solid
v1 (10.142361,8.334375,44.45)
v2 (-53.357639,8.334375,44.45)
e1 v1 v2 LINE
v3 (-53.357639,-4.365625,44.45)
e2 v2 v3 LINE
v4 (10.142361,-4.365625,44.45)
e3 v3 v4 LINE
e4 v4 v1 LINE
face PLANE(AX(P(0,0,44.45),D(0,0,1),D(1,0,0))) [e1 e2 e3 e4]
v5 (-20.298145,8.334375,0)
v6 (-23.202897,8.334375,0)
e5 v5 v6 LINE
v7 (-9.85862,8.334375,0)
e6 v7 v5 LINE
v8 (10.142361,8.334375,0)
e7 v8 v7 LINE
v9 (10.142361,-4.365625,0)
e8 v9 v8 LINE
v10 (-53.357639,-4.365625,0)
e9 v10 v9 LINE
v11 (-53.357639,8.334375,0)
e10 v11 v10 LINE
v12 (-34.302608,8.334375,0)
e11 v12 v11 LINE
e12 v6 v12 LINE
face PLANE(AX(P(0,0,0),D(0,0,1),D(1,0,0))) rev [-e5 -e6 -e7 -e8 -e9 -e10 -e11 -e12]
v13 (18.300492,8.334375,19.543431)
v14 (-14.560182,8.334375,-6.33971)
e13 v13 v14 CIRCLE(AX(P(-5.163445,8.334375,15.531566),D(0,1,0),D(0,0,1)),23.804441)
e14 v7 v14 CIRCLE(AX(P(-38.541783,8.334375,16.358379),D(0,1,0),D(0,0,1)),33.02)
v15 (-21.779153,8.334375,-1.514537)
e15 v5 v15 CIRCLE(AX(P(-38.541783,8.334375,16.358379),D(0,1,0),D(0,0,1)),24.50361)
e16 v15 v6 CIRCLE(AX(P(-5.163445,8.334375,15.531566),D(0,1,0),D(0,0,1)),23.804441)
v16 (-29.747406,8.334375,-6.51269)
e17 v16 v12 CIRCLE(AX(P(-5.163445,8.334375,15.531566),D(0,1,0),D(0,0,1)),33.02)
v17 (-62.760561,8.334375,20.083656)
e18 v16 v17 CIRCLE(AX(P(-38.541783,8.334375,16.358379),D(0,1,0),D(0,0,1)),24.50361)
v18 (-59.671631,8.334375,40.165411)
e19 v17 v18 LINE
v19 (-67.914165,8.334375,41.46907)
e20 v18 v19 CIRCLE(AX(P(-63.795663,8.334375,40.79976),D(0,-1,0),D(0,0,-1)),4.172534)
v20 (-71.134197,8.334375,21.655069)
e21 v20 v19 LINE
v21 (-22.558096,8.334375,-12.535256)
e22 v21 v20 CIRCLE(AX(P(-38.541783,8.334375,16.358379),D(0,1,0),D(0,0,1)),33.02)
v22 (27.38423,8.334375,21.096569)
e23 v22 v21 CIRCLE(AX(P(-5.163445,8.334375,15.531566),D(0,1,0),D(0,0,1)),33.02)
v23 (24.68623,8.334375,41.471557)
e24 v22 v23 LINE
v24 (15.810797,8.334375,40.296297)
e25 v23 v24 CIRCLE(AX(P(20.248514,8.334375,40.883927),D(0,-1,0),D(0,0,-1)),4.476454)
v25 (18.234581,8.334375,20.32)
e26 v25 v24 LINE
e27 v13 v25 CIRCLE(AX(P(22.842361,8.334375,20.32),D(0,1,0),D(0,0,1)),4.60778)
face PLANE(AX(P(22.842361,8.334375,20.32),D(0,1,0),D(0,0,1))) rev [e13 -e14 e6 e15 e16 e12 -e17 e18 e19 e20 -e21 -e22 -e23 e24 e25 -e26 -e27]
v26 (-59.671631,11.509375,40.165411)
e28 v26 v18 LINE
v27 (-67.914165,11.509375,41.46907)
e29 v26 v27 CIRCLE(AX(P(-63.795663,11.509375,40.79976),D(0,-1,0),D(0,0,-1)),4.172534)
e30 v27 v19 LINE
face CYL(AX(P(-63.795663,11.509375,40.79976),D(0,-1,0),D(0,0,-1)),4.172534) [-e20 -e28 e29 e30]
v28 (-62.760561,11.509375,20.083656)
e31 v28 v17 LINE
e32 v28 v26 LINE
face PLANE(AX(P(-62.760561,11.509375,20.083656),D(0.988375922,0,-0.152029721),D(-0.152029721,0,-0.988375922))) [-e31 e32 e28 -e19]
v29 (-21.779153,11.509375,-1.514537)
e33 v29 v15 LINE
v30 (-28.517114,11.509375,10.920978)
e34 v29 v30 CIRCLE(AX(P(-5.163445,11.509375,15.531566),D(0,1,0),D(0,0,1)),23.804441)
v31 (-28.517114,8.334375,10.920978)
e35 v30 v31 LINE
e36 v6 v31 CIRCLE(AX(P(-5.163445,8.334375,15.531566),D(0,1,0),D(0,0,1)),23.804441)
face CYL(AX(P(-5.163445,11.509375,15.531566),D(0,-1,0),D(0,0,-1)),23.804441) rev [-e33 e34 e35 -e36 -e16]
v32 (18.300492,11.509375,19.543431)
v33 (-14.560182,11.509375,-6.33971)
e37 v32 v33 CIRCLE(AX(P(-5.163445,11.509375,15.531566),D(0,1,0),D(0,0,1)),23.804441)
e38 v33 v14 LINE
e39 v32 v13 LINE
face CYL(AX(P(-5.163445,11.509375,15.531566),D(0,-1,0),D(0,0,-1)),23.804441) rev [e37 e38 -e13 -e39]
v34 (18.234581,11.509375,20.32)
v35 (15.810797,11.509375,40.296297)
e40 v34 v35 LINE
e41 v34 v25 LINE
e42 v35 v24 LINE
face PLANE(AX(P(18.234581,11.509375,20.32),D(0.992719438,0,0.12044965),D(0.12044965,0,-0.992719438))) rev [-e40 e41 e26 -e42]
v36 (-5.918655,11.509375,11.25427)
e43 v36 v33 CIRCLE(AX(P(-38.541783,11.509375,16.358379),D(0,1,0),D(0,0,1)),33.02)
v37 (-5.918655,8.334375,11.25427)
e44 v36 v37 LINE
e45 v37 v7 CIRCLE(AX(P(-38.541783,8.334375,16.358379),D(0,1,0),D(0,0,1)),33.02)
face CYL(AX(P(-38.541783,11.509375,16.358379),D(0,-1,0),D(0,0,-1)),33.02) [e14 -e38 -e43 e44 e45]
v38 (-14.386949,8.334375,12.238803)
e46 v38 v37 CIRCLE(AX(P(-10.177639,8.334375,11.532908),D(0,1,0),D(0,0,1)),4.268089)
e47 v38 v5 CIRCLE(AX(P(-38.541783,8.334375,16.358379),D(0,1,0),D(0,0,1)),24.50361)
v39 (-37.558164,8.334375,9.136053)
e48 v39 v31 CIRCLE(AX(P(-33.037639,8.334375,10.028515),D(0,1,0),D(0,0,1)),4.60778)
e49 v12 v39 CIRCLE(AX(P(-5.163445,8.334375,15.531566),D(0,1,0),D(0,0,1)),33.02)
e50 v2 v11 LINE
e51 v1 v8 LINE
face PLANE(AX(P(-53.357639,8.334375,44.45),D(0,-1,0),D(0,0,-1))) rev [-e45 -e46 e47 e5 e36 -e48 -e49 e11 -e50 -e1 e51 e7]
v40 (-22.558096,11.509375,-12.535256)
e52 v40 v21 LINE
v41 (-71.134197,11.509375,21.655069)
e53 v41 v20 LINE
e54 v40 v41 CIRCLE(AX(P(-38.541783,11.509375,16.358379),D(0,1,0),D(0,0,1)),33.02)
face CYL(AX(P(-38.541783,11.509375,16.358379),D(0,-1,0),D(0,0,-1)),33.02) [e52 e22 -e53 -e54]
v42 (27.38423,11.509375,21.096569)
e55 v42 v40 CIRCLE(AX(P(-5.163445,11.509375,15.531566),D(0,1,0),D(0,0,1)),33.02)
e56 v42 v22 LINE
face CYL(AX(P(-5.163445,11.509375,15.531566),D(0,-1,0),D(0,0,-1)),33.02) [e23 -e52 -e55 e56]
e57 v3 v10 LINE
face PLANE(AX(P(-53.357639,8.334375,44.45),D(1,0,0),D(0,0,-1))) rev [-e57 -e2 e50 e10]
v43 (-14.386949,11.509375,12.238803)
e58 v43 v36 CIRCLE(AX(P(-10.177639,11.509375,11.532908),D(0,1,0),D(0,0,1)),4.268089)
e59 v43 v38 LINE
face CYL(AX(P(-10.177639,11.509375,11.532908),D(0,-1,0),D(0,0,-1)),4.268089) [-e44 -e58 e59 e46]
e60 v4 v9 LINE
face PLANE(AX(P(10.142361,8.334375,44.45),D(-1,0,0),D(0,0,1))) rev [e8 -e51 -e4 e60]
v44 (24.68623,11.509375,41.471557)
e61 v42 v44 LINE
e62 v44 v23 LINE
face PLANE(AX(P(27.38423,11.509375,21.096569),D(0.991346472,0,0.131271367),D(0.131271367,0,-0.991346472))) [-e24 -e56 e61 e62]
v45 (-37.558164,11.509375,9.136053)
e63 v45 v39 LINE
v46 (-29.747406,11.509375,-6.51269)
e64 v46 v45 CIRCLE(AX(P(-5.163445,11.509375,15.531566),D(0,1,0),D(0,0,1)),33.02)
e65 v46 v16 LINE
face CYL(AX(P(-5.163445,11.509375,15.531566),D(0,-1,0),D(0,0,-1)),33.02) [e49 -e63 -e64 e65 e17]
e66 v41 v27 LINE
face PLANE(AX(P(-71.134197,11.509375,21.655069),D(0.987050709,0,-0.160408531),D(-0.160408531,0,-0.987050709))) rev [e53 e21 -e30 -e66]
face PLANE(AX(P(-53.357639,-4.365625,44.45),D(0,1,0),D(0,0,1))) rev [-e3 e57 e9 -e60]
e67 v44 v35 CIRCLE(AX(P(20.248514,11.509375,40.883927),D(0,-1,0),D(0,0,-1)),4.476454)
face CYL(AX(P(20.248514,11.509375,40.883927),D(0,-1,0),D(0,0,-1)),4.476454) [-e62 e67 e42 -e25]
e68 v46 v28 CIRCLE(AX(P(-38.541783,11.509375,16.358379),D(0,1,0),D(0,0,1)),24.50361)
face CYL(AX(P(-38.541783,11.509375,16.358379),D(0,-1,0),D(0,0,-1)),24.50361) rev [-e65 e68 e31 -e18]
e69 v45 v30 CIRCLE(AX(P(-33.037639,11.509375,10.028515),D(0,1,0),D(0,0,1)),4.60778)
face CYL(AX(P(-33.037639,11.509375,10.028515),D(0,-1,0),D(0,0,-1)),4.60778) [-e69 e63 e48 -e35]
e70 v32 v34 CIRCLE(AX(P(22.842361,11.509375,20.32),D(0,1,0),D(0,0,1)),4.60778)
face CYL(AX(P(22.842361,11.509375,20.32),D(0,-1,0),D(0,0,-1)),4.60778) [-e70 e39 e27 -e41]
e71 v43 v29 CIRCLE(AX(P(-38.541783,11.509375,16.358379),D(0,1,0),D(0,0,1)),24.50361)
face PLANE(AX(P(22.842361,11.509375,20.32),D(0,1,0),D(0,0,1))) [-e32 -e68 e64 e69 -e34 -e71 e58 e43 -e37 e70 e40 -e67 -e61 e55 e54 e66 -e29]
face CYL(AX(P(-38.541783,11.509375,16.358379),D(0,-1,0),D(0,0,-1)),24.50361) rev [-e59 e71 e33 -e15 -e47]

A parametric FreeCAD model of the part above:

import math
import FreeCAD as App
import Part
import Sketcher
Q = App.Units.Quantity

doc = App.newDocument("Part")
params = doc.addObject("Spreadsheet::Sheet", "Params")
for row, (alias, value) in enumerate([
    ("sketch1_width", "2.5 in"),
    ("sketch1_height", "0.5 in"),
    ("pad1_length", "1.75 in"),
    ("sketch2_radius", "1.3 in"),
    ("pad2_length", "0.125 in"),
    ("sketch3_width", "2.5 in"),
    ("sketch3_height", "0.5 in"),
    ("pad3_length", "0.125 in"),
    ("sketch4_radius", "1.3 in"),
    ("pad4_length", "0.125 in"),
], start=1):
    params.set(f"A{row}", alias)
    params.set(f"B{row}", "=" + value)
    params.setAlias(f"B{row}", alias)

body = doc.addObject("PartDesign::Body", "Body")

# Sketch on XY plane
sketch1 = body.newObject("Sketcher::SketchObject", "Sketch")
sketch1.AttachmentSupport = (doc.getObject("XY_Plane"), [""])
sketch1.MapMode = "FlatFace"
sketch1.addGeometry([
    Part.LineSegment(App.Vector(-53, 8, 0), App.Vector(-53, -4, 0)),
    Part.LineSegment(App.Vector(-53, -4, 0), App.Vector(10, -4, 0)),
    Part.LineSegment(App.Vector(10, -4, 0), App.Vector(10, 8, 0)),
    Part.LineSegment(App.Vector(10, 8, 0), App.Vector(-53, 8, 0)),
], False)
sketch1.addConstraint([
    Sketcher.Constraint("Coincident", 0, 2, 1, 1),
    Sketcher.Constraint("Coincident", 1, 2, 2, 1),
    Sketcher.Constraint("Coincident", 2, 2, 3, 1),
    Sketcher.Constraint("Coincident", 3, 2, 0, 1),
    Sketcher.Constraint("Vertical", 0),
    Sketcher.Constraint("Horizontal", 1),
    Sketcher.Constraint("Vertical", 2),
    Sketcher.Constraint("Horizontal", 3),
    Sketcher.Constraint("DistanceX", 1, 1, 1, 2, Q("2.5 in")),
    Sketcher.Constraint("DistanceY", 0, 2, 0, 1, Q("0.5 in")),
    Sketcher.Constraint("DistanceY", 0, 2, -1, 1, Q("0.171875 in")),
    Sketcher.Constraint("DistanceX", 0, 2, -1, 1, 53.357639),
])
sketch1.setExpression("Constraints[8]", "Params.sketch1_width")
sketch1.setExpression("Constraints[9]", "Params.sketch1_height")
pad1 = body.newObject("PartDesign::Pad", "Pad")
pad1.Profile = sketch1
pad1.setExpression("Length", "Params.pad1_length")

# Sketch on XZ plane
sketch2 = body.newObject("Sketcher::SketchObject", "Sketch001")
sketch2.AttachmentSupport = (doc.getObject("XZ_Plane"), [""])
sketch2.MapMode = "FlatFace"
sketch2.AttachmentOffset = App.Placement(App.Vector(0, 0, -0.328125 * 25.4), App.Rotation())
sketch2.addGeometry([
    Part.LineSegment(App.Vector(24.7, 41.5, 0), App.Vector(27.4, 21.1, 0)),  # 0
    Part.ArcOfCircle(Part.Circle(App.Vector(-5.2, 15.5, 0), App.Vector(0, 0, 1), 33), math.radians(-169), math.radians(10)),  # 1
    Part.ArcOfCircle(Part.Circle(App.Vector(-33, 10, 0), App.Vector(0, 0, 1), 4.6), math.radians(11), math.radians(191)),  # 2
    Part.ArcOfCircle(Part.Circle(App.Vector(-5.2, 15.5, 0), App.Vector(0, 0, 1), 23.8), math.radians(-169), math.radians(10)),  # 3
    Part.ArcOfCircle(Part.Circle(App.Vector(22.8, 20.3, 0), App.Vector(0, 0, 1), 4.6), math.radians(180), math.radians(189.7)),  # 4
    Part.LineSegment(App.Vector(18.2, 20.3, 0), App.Vector(15.8, 40.3, 0)),  # 5
    Part.ArcOfCircle(Part.Circle(App.Vector(20.2, 40.9, 0), App.Vector(0, 0, 1), 4.5), math.radians(8), math.radians(188)),  # 6
], False)
sketch2.addConstraint([
    Sketcher.Constraint("Coincident", 0, 2, 1, 2),
    Sketcher.Constraint("Tangent", 1, 1, 2, 2),
    Sketcher.Constraint("Tangent", 2, 1, 3, 1),
    Sketcher.Constraint("Tangent", 3, 2, 4, 2),
    Sketcher.Constraint("Coincident", 4, 1, 5, 1),
    Sketcher.Constraint("Coincident", 5, 2, 6, 2),
    Sketcher.Constraint("Tangent", 6, 1, 0, 1),
    Sketcher.Constraint("Coincident", 3, 3, 1, 3),
    Sketcher.Constraint("Equal", 2, 4),
    Sketcher.Constraint("Radius", 1, Q("1.3 in")),
    Sketcher.Constraint("DistanceY", -1, 1, 4, 3, Q("0.8 in")),
    Sketcher.Constraint("DistanceY", -1, 1, 4, 1, Q("0.8 in")),
    Sketcher.Constraint("DistanceX", 2, 3, 4, 3, Q("2.2 in")),
    Sketcher.Constraint("Radius", 2, 4.60778),
    Sketcher.Constraint("Radius", 6, 4.476454),
    Sketcher.Constraint("Distance", 5, 20.122802),
    Sketcher.Constraint("DistanceX", 6, 1, 0, 2, 2.698),
    Sketcher.Constraint("DistanceX", 2, 3, -1, 1, 33.037639),
    Sketcher.Constraint("DistanceX", -1, 1, 0, 2, 27.38423),
    Sketcher.Constraint("DistanceY", -1, 1, 2, 1, 10.920978),
    Sketcher.Constraint("DistanceY", 3, 3, 6, 3, 25.35236),
])
sketch2.setExpression("Constraints[9]", "Params.sketch2_radius")
pad2 = body.newObject("PartDesign::Pad", "Pad001")
pad2.Profile = sketch2
pad2.setExpression("Length", "Params.pad2_length")
pad2.Reversed = True

# Sketch on XY plane
sketch3 = body.newObject("Sketcher::SketchObject", "Sketch002")
sketch3.AttachmentSupport = (doc.getObject("XY_Plane"), [""])
sketch3.MapMode = "FlatFace"
sketch3.addGeometry([
    Part.LineSegment(App.Vector(-53, 8, 0), App.Vector(-53, -4, 0)),
    Part.LineSegment(App.Vector(-53, -4, 0), App.Vector(10, -4, 0)),
    Part.LineSegment(App.Vector(10, -4, 0), App.Vector(10, 8, 0)),
    Part.LineSegment(App.Vector(10, 8, 0), App.Vector(-53, 8, 0)),
], False)
sketch3.addConstraint([
    Sketcher.Constraint("Coincident", 0, 2, 1, 1),
    Sketcher.Constraint("Coincident", 1, 2, 2, 1),
    Sketcher.Constraint("Coincident", 2, 2, 3, 1),
    Sketcher.Constraint("Coincident", 3, 2, 0, 1),
    Sketcher.Constraint("Vertical", 0),
    Sketcher.Constraint("Horizontal", 1),
    Sketcher.Constraint("Vertical", 2),
    Sketcher.Constraint("Horizontal", 3),
    Sketcher.Constraint("DistanceX", 1, 1, 1, 2, Q("2.5 in")),
    Sketcher.Constraint("DistanceY", 0, 2, 0, 1, Q("0.5 in")),
    Sketcher.Constraint("DistanceY", 0, 2, -1, 1, Q("0.171875 in")),
    Sketcher.Constraint("DistanceX", 0, 2, -1, 1, 53.357639),
])
sketch3.setExpression("Constraints[8]", "Params.sketch3_width")
sketch3.setExpression("Constraints[9]", "Params.sketch3_height")
pad3 = body.newObject("PartDesign::Pad", "Pad002")
pad3.Profile = sketch3
pad3.setExpression("Length", "Params.pad3_length")

# Sketch on XZ plane
sketch4 = body.newObject("Sketcher::SketchObject", "Sketch003")
sketch4.AttachmentSupport = (doc.getObject("XZ_Plane"), [""])
sketch4.MapMode = "FlatFace"
sketch4.AttachmentOffset = App.Placement(App.Vector(0, 0, -0.328125 * 25.4), App.Rotation())
sketch4.addGeometry([
    Part.LineSegment(App.Vector(-71.1, 21.7, 0), App.Vector(-67.9, 41.5, 0)),  # 0
    Part.ArcOfCircle(Part.Circle(App.Vector(-63.8, 40.8, 0), App.Vector(0, 0, 1), 4.2), math.radians(-9), math.radians(171)),  # 1
    Part.LineSegment(App.Vector(-59.7, 40.2, 0), App.Vector(-62.8, 20.1, 0)),  # 2
    Part.ArcOfCircle(Part.Circle(App.Vector(-38.5, 16.4, 0), App.Vector(0, 0, 1), 24.5), math.radians(171), math.radians(350)),  # 3
    Part.ArcOfCircle(Part.Circle(App.Vector(-10.2, 11.5, 0), App.Vector(0, 0, 1), 4.3), math.radians(-4), math.radians(170)),  # 4
    Part.ArcOfCircle(Part.Circle(App.Vector(-38.5, 16.4, 0), App.Vector(0, 0, 1), 33), math.radians(171), math.radians(351)),  # 5
], False)
sketch4.addConstraint([
    Sketcher.Constraint("Tangent", 0, 2, 1, 2),
    Sketcher.Constraint("Tangent", 1, 1, 2, 1),
    Sketcher.Constraint("Tangent", 2, 2, 3, 1),
    Sketcher.Constraint("Coincident", 3, 2, 4, 2),
    Sketcher.Constraint("Coincident", 4, 1, 5, 2),
    Sketcher.Constraint("Tangent", 5, 1, 0, 1),
    Sketcher.Constraint("Coincident", 5, 3, 3, 3),
    Sketcher.Constraint("Radius", 5, Q("1.3 in")),
    Sketcher.Constraint("Radius", 3, 24.50361),
    Sketcher.Constraint("Radius", 4, 4.268089),
    Sketcher.Constraint("Radius", 1, 4.172534),
    Sketcher.Constraint("DistanceY", 5, 1, 0, 2, 19.814001),
    Sketcher.Constraint("DistanceY", -1, 1, 1, 3, 40.79976),
    Sketcher.Constraint("DistanceY", -1, 1, 3, 3, 16.358379),
    Sketcher.Constraint("DistanceX", 4, 3, -1, 1, 10.177639),
    Sketcher.Constraint("DistanceX", 1, 1, -1, 1, 59.671631),
    Sketcher.Constraint("DistanceX", 3, 2, -1, 1, 14.386949),
])
sketch4.setExpression("Constraints[7]", "Params.sketch4_radius")
pad4 = body.newObject("PartDesign::Pad", "Pad003")
pad4.Profile = sketch4
pad4.setExpression("Length", "Params.pad4_length")
pad4.Reversed = True

doc.recompute()
